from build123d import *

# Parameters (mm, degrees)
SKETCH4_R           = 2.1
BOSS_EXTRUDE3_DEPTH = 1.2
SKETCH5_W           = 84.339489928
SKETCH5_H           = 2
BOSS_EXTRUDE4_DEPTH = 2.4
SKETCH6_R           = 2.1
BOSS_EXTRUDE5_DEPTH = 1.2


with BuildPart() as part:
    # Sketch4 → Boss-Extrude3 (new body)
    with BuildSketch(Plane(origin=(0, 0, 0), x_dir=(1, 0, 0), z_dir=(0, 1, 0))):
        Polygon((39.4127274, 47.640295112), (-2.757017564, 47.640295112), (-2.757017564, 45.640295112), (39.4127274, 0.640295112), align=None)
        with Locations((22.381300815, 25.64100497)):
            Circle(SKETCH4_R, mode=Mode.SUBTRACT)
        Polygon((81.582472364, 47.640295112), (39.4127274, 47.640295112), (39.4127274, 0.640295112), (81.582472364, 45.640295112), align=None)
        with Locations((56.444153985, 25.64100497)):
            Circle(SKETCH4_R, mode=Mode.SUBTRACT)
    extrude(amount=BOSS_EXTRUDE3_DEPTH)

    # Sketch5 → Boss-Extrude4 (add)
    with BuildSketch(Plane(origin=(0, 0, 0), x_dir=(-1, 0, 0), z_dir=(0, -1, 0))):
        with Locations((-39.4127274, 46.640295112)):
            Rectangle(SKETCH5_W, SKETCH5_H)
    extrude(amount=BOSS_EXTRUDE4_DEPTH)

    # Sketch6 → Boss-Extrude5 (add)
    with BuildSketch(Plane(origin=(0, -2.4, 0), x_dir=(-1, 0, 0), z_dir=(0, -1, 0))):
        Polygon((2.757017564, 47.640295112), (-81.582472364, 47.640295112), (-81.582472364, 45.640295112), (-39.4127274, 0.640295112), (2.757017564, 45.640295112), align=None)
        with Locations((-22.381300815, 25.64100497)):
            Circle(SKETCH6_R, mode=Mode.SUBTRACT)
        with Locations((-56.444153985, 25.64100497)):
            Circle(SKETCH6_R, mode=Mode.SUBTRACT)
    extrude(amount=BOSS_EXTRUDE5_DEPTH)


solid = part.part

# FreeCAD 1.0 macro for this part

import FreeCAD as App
import Part
import Sketcher
from FreeCAD import Vector


def add_polygon(sketch, points):
    """Adds a closed chain of lines whose ends are joined by coincident constraints."""
    first, n = sketch.GeometryCount, len(points)
    for a, b in zip(points, points[1:] + points[:1]):
        sketch.addGeometry(Part.LineSegment(App.Vector(*a, 0), App.Vector(*b, 0)), False)
    for i in range(n):
        sketch.addConstraint(Sketcher.Constraint("Coincident", first + i, 2, first + (i + 1) % n, 1))

doc = App.newDocument("Part")
body = doc.addObject("PartDesign::Body", "Body")

# Sketch on XZ plane
sketch1 = body.newObject("Sketcher::SketchObject", "Sketch")
sketch1.AttachmentSupport = (doc.getObject("XZ_Plane"), [""])
sketch1.MapMode = "FlatFace"
add_polygon(sketch1, [(-2.8, -47.6), (-2.8, -45.6), (39.4, -0.6), (81.6, -45.6), (81.6, -47.6)])  # lines 0-4
sketch1.addGeometry(Part.Circle(Vector(22.4, -25.6, 0), Vector(0, 0, 1), 2.1), False)  # 5
sketch1.addGeometry(Part.Circle(Vector(56.4, -25.6, 0), Vector(0, 0, 1), 2.1), False)  # 6
sketch1.addConstraint([
    Sketcher.Constraint("Vertical", 0),
    Sketcher.Constraint("Vertical", 3),
    Sketcher.Constraint("Horizontal", 4),
    Sketcher.Constraint("Equal", 5, 6),
    Sketcher.Constraint("Horizontal", 5, 3, 6, 3),
    Sketcher.Constraint("Horizontal", 0, 2, 2, 2),
    Sketcher.Constraint("Equal", 1, 2),
    Sketcher.Constraint("Diameter", 5, 4.2),
    Sketcher.Constraint("DistanceY", 0, 1, 0, 2, 2.0),
    Sketcher.Constraint("DistanceY", 0, 2, 1, 2, 45.0),
    Sketcher.Constraint("Distance", 1, 61.670799),
    Sketcher.Constraint("DistanceX", -1, 1, 5, 3, 22.381301),
    Sketcher.Constraint("DistanceX", 0, 2, 5, 3, 25.138318),
    Sketcher.Constraint("DistanceY", 0, 2, 5, 3, 19.99929),
    Sketcher.Constraint("DistanceX", 0, 2, 6, 3, 59.201172),
    Sketcher.Constraint("DistanceY", 5, 3, -1, 1, 25.641005),
])
pad1 = body.newObject("PartDesign::Pad", "Pad")
pad1.Profile = sketch1
pad1.Length = 1.2
pad1.Reversed = True

# Sketch on XZ plane
sketch2 = body.newObject("Sketcher::SketchObject", "Sketch001")
sketch2.AttachmentSupport = (doc.getObject("XZ_Plane"), [""])
sketch2.MapMode = "FlatFace"
add_polygon(sketch2, [(81.6, -47.6), (81.6, -45.6), (-2.8, -45.6), (-2.8, -47.6)])  # lines 0-3
sketch2.addConstraint([
    Sketcher.Constraint("Vertical", 0),
    Sketcher.Constraint("Horizontal", 1),
    Sketcher.Constraint("Vertical", 2),
    Sketcher.Constraint("Horizontal", 3),
    Sketcher.Constraint("DistanceY", 0, 1, 0, 2, 2.0),
    Sketcher.Constraint("DistanceX", 1, 2, 1, 1, 84.33949),
    Sketcher.Constraint("DistanceX", -1, 1, 0, 2, 81.582472),
    Sketcher.Constraint("DistanceY", 0, 2, -1, 1, 45.640295),
])
pad2 = body.newObject("PartDesign::Pad", "Pad001")
pad2.Profile = sketch2
pad2.Length = 2.4

# Sketch on XZ plane
sketch3 = body.newObject("Sketcher::SketchObject", "Sketch002")
sketch3.AttachmentSupport = (doc.getObject("XZ_Plane"), [""])
sketch3.MapMode = "FlatFace"
sketch3.AttachmentOffset = App.Placement(Vector(0, 0, 2.4), App.Rotation())
add_polygon(sketch3, [(-2.8, -47.6), (81.6, -47.6), (81.6, -45.6), (39.4, -0.6), (-2.8, -45.6)])  # lines 0-4
sketch3.addGeometry(Part.Circle(Vector(56.4, -25.6, 0), Vector(0, 0, 1), 2.1), False)  # 5
sketch3.addGeometry(Part.Circle(Vector(22.4, -25.6, 0), Vector(0, 0, 1), 2.1), False)  # 6
sketch3.addConstraint([
    Sketcher.Constraint("Horizontal", 0),
    Sketcher.Constraint("Vertical", 1),
    Sketcher.Constraint("Vertical", 4),
    Sketcher.Constraint("Equal", 5, 6),
    Sketcher.Constraint("Horizontal", 5, 3, 6, 3),
    Sketcher.Constraint("Horizontal", 1, 2, 3, 2),
    Sketcher.Constraint("Equal", 2, 3),
    Sketcher.Constraint("Diameter", 5, 4.2),
    Sketcher.Constraint("DistanceY", 1, 1, 1, 2, 2.0),
    Sketcher.Constraint("DistanceY", 1, 2, 2, 2, 45.0),
    Sketcher.Constraint("Distance", 2, 61.670799),
    Sketcher.Constraint("DistanceX", -1, 1, 6, 3, 22.381301),
    Sketcher.Constraint("DistanceX", 5, 3, 0, 2, 25.138318),
    Sketcher.Constraint("DistanceY", 0, 2, 5, 3, 21.99929),
    Sketcher.Constraint("DistanceX", 6, 3, 0, 2, 59.201172),
    Sketcher.Constraint("DistanceY", 5, 3, -1, 1, 25.641005),
])
pad3 = body.newObject("PartDesign::Pad", "Pad002")
pad3.Profile = sketch3
pad3.Length = 1.2

doc.recompute()
